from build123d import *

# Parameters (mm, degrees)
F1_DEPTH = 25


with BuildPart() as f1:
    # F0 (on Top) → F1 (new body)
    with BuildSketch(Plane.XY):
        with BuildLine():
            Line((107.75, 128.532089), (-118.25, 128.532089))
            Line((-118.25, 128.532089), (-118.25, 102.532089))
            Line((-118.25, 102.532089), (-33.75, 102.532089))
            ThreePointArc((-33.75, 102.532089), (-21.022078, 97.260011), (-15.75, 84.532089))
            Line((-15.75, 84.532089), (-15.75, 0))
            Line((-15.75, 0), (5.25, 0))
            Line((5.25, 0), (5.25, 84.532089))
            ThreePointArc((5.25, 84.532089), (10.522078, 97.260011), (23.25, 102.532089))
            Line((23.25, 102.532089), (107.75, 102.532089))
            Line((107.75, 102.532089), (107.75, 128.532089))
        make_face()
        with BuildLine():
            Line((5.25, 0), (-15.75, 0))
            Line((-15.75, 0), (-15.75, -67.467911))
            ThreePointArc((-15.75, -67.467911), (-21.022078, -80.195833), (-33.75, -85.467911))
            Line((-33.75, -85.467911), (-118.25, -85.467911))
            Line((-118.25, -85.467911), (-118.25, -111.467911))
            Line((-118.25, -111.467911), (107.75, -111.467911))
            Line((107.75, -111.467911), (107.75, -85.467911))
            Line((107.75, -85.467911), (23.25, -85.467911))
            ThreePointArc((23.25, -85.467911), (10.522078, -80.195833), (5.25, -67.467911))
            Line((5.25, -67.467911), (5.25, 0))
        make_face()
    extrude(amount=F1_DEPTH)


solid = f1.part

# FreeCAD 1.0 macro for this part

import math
import FreeCAD as App
import Part
import Sketcher
Q = App.Units.Quantity

doc = App.newDocument("Part")
body = doc.addObject("PartDesign::Body", "Body")

sketch1 = body.newObject("Sketcher::SketchObject", "Sketch")
sketch1.AttachmentSupport = (doc.getObject("XY_Plane"), [""])
sketch1.MapMode = "FlatFace"
sketch1.addGeometry([
    Part.LineSegment(App.Vector(108, 129, 0), App.Vector(-118, 129, 0)),
    Part.LineSegment(App.Vector(-118, 129, 0), App.Vector(-118, 103, 0)),
    Part.LineSegment(App.Vector(-118, 103, 0), App.Vector(-34, 103, 0)),
    Part.ArcOfCircle(Part.Circle(App.Vector(-34, 85, 0), App.Vector(0, 0, 1), 18), math.radians(0), math.radians(90)),
    Part.LineSegment(App.Vector(-16, 85, 0), App.Vector(-16, -67, 0)),
    Part.ArcOfCircle(Part.Circle(App.Vector(-34, -67, 0), App.Vector(0, 0, 1), 18), math.radians(-90), math.radians(0)),
    Part.LineSegment(App.Vector(-34, -85, 0), App.Vector(-118, -85, 0)),
    Part.LineSegment(App.Vector(-118, -85, 0), App.Vector(-118, -111, 0)),
    Part.LineSegment(App.Vector(-118, -111, 0), App.Vector(108, -111, 0)),
    Part.LineSegment(App.Vector(108, -111, 0), App.Vector(108, -85, 0)),
    Part.LineSegment(App.Vector(108, -85, 0), App.Vector(23, -85, 0)),
    Part.ArcOfCircle(Part.Circle(App.Vector(23, -67, 0), App.Vector(0, 0, 1), 18), math.radians(-180), math.radians(-90)),
    Part.LineSegment(App.Vector(5, -67, 0), App.Vector(5, 85, 0)),
    Part.ArcOfCircle(Part.Circle(App.Vector(23, 85, 0), App.Vector(0, 0, 1), 18), math.radians(90), math.radians(180)),
    Part.LineSegment(App.Vector(23, 103, 0), App.Vector(108, 103, 0)),
    Part.LineSegment(App.Vector(108, 103, 0), App.Vector(108, 129, 0)),
], False)
sketch1.addConstraint([
    Sketcher.Constraint("Coincident", 0, 2, 1, 1),
    Sketcher.Constraint("Coincident", 1, 2, 2, 1),
    Sketcher.Constraint("Tangent", 2, 2, 3, 2),
    Sketcher.Constraint("Tangent", 3, 1, 4, 1),
    Sketcher.Constraint("Tangent", 4, 2, 5, 2),
    Sketcher.Constraint("Tangent", 5, 1, 6, 1),
    Sketcher.Constraint("Coincident", 6, 2, 7, 1),
    Sketcher.Constraint("Coincident", 7, 2, 8, 1),
    Sketcher.Constraint("Coincident", 8, 2, 9, 1),
    Sketcher.Constraint("Coincident", 9, 2, 10, 1),
    Sketcher.Constraint("Tangent", 10, 2, 11, 2),
    Sketcher.Constraint("Tangent", 11, 1, 12, 1),
    Sketcher.Constraint("Tangent", 12, 2, 13, 2),
    Sketcher.Constraint("Tangent", 13, 1, 14, 1),
    Sketcher.Constraint("Coincident", 14, 2, 15, 1),
    Sketcher.Constraint("Coincident", 15, 2, 0, 1),
    Sketcher.Constraint("Horizontal", 0),
    Sketcher.Constraint("Vertical", 1),
    Sketcher.Constraint("Horizontal", 2),
    Sketcher.Constraint("Vertical", 4),
    Sketcher.Constraint("Horizontal", 6),
    Sketcher.Constraint("Vertical", 7),
    Sketcher.Constraint("Horizontal", 8),
    Sketcher.Constraint("Vertical", 9),
    Sketcher.Constraint("Horizontal", 10),
    Sketcher.Constraint("Vertical", 12),
    Sketcher.Constraint("Horizontal", 14),
    Sketcher.Constraint("Vertical", 15),
    Sketcher.Constraint("Equal", 3, 5),
    Sketcher.Constraint("Equal", 5, 11),
    Sketcher.Constraint("Equal", 11, 13),
    Sketcher.Constraint("Horizontal", 5, 3, 11, 3),
    Sketcher.Constraint("Horizontal", 3, 3, 13, 3),
    Sketcher.Constraint("Vertical", 1, 2, 6, 2),
    Sketcher.Constraint("Vertical", 9, 2, 14, 2),
    Sketcher.Constraint("Equal", 6, 10),
    Sketcher.Constraint("Equal", 1, 7),
    Sketcher.Constraint("Radius", 3, Q("18 mm")),
    Sketcher.Constraint("DistanceX", 0, 2, 0, 1, Q("226 mm")),
    Sketcher.Constraint("DistanceY", 1, 2, 1, 1, Q("26 mm")),
    Sketcher.Constraint("DistanceY", 4, 2, 4, 1, Q("152 mm")),
    Sketcher.Constraint("DistanceX", 2, 1, 2, 2, Q("84.5 mm")),
    Sketcher.Constraint("DistanceX", 3, 3, -1, 1, Q("33.75 mm")),
    Sketcher.Constraint("DistanceY", -1, 1, 3, 3, Q("84.532089 mm")),
])
pad1 = body.newObject("PartDesign::Pad", "Pad")
pad1.Profile = sketch1
pad1.Length = 25

doc.recompute()
